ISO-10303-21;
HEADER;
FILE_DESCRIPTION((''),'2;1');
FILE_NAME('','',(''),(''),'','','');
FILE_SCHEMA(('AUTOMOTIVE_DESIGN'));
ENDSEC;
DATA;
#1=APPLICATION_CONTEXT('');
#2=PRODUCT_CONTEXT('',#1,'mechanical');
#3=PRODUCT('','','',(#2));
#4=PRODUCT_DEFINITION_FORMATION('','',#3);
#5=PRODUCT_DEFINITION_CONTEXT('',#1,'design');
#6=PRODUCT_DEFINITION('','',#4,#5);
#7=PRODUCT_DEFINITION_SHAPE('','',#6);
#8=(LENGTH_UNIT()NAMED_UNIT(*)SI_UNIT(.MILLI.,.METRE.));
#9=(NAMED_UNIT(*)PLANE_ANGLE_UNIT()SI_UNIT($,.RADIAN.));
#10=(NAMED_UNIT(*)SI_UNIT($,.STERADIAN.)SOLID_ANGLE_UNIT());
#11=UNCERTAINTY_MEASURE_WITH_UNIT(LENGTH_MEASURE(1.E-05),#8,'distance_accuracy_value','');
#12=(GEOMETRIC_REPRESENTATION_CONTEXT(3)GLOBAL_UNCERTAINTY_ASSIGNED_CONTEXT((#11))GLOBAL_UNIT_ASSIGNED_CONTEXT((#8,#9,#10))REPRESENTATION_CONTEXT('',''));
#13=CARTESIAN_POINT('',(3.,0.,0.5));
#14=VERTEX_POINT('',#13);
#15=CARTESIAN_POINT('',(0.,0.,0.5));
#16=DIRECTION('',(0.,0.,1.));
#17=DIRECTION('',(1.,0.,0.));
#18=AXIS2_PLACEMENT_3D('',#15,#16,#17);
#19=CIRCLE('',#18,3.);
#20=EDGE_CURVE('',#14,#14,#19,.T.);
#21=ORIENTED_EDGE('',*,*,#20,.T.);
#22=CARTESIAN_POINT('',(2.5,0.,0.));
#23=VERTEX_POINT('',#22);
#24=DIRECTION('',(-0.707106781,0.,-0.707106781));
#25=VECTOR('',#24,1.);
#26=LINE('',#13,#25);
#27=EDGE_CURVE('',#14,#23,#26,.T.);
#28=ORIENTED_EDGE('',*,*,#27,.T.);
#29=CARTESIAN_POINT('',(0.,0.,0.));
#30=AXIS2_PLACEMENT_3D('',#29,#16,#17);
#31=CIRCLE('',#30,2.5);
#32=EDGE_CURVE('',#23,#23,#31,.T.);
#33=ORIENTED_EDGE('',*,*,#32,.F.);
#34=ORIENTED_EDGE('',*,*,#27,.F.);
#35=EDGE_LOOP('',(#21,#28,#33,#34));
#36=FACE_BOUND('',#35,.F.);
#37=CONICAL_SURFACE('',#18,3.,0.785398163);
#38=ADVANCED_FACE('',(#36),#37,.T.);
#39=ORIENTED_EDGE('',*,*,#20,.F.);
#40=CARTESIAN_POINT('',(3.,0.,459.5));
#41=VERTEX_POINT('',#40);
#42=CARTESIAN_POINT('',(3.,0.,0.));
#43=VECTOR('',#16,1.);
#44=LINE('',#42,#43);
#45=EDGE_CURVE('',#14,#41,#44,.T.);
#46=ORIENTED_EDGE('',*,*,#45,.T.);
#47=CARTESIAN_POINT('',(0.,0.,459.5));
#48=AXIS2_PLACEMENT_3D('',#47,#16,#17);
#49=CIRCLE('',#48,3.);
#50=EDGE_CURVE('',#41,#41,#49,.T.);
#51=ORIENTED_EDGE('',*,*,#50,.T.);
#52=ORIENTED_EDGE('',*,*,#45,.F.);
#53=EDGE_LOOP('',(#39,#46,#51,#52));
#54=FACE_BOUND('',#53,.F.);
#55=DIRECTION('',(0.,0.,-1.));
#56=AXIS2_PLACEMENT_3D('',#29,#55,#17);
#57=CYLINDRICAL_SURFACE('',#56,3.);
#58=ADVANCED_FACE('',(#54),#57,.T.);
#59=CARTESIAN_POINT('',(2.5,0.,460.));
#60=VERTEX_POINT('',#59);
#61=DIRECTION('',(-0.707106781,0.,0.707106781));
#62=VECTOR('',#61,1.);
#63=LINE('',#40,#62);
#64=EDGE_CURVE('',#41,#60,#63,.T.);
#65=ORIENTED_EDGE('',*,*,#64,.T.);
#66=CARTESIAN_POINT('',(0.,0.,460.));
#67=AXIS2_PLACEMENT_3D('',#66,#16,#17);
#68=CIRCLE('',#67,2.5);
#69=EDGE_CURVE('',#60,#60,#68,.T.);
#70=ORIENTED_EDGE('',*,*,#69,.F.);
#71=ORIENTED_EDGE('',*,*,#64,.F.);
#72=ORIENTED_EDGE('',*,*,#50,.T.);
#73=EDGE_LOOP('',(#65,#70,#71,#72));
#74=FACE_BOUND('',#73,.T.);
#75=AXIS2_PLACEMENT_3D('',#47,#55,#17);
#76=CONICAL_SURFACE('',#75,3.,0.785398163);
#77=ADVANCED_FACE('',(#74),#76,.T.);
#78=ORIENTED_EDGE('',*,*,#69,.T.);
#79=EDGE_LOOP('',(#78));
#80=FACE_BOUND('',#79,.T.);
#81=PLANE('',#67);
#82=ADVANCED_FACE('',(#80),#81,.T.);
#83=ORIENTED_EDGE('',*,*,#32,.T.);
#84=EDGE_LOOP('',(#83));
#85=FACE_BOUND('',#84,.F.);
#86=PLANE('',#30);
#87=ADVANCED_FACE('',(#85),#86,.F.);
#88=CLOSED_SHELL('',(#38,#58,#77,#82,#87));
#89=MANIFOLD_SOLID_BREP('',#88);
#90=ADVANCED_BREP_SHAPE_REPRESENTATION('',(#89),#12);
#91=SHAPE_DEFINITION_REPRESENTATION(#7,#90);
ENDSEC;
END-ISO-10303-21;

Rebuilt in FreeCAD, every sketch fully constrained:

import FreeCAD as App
import Part
import Sketcher
from FreeCAD import Vector
Q = App.Units.Quantity


def edges_at(feature, points):
    """Names of the edges that pass closest to the given points."""
    edges = feature.Shape.Edges
    near = lambda p: min(range(len(edges)), key=lambda i: edges[i].distToShape(Part.Vertex(*p))[0])
    return sorted({f"Edge{near(p) + 1}" for p in points})

doc = App.newDocument("Part")
params = doc.addObject("Spreadsheet::Sheet", "Params")
for row, (alias, value) in enumerate([
    ("sketch1_diameter", "6 mm"),
    ("pad1_length", "460 mm"),
    ("chamfer_size", "0.5 mm"),
    ("chamfer2_size", "0.5 mm"),
], start=1):
    params.set(f"A{row}", alias)
    params.set(f"B{row}", "=" + value)
    params.setAlias(f"B{row}", alias)

body = doc.addObject("PartDesign::Body", "Body")

sketch1 = body.newObject("Sketcher::SketchObject", "Sketch")
sketch1.AttachmentSupport = (doc.getObject("XY_Plane"), [""])
sketch1.MapMode = "FlatFace"
sketch1.addGeometry(Part.Circle(Vector(0, 0, 0), Vector(0, 0, 1), 3), False)
sketch1.addConstraint([
    Sketcher.Constraint("Coincident", 0, 3, -1, 1),
    Sketcher.Constraint("Diameter", 0, Q("6 mm")),
])
sketch1.setExpression("Constraints[1]", "Params.sketch1_diameter")
pad1 = body.newObject("PartDesign::Pad", "Pad")
pad1.Profile = sketch1
pad1.setExpression("Length", "Params.pad1_length")
doc.recompute()

chamfer = body.newObject("PartDesign::Chamfer", "Chamfer")
chamfer.Base = (pad1, edges_at(pad1, [(-3, 0, 0)]))
chamfer.setExpression("Size", "Params.chamfer_size")
doc.recompute()

chamfer2 = body.newObject("PartDesign::Chamfer", "Chamfer001")
chamfer2.Base = (chamfer, edges_at(chamfer, [(-3, 0, 460)]))
chamfer2.setExpression("Size", "Params.chamfer2_size")

doc.recompute()
